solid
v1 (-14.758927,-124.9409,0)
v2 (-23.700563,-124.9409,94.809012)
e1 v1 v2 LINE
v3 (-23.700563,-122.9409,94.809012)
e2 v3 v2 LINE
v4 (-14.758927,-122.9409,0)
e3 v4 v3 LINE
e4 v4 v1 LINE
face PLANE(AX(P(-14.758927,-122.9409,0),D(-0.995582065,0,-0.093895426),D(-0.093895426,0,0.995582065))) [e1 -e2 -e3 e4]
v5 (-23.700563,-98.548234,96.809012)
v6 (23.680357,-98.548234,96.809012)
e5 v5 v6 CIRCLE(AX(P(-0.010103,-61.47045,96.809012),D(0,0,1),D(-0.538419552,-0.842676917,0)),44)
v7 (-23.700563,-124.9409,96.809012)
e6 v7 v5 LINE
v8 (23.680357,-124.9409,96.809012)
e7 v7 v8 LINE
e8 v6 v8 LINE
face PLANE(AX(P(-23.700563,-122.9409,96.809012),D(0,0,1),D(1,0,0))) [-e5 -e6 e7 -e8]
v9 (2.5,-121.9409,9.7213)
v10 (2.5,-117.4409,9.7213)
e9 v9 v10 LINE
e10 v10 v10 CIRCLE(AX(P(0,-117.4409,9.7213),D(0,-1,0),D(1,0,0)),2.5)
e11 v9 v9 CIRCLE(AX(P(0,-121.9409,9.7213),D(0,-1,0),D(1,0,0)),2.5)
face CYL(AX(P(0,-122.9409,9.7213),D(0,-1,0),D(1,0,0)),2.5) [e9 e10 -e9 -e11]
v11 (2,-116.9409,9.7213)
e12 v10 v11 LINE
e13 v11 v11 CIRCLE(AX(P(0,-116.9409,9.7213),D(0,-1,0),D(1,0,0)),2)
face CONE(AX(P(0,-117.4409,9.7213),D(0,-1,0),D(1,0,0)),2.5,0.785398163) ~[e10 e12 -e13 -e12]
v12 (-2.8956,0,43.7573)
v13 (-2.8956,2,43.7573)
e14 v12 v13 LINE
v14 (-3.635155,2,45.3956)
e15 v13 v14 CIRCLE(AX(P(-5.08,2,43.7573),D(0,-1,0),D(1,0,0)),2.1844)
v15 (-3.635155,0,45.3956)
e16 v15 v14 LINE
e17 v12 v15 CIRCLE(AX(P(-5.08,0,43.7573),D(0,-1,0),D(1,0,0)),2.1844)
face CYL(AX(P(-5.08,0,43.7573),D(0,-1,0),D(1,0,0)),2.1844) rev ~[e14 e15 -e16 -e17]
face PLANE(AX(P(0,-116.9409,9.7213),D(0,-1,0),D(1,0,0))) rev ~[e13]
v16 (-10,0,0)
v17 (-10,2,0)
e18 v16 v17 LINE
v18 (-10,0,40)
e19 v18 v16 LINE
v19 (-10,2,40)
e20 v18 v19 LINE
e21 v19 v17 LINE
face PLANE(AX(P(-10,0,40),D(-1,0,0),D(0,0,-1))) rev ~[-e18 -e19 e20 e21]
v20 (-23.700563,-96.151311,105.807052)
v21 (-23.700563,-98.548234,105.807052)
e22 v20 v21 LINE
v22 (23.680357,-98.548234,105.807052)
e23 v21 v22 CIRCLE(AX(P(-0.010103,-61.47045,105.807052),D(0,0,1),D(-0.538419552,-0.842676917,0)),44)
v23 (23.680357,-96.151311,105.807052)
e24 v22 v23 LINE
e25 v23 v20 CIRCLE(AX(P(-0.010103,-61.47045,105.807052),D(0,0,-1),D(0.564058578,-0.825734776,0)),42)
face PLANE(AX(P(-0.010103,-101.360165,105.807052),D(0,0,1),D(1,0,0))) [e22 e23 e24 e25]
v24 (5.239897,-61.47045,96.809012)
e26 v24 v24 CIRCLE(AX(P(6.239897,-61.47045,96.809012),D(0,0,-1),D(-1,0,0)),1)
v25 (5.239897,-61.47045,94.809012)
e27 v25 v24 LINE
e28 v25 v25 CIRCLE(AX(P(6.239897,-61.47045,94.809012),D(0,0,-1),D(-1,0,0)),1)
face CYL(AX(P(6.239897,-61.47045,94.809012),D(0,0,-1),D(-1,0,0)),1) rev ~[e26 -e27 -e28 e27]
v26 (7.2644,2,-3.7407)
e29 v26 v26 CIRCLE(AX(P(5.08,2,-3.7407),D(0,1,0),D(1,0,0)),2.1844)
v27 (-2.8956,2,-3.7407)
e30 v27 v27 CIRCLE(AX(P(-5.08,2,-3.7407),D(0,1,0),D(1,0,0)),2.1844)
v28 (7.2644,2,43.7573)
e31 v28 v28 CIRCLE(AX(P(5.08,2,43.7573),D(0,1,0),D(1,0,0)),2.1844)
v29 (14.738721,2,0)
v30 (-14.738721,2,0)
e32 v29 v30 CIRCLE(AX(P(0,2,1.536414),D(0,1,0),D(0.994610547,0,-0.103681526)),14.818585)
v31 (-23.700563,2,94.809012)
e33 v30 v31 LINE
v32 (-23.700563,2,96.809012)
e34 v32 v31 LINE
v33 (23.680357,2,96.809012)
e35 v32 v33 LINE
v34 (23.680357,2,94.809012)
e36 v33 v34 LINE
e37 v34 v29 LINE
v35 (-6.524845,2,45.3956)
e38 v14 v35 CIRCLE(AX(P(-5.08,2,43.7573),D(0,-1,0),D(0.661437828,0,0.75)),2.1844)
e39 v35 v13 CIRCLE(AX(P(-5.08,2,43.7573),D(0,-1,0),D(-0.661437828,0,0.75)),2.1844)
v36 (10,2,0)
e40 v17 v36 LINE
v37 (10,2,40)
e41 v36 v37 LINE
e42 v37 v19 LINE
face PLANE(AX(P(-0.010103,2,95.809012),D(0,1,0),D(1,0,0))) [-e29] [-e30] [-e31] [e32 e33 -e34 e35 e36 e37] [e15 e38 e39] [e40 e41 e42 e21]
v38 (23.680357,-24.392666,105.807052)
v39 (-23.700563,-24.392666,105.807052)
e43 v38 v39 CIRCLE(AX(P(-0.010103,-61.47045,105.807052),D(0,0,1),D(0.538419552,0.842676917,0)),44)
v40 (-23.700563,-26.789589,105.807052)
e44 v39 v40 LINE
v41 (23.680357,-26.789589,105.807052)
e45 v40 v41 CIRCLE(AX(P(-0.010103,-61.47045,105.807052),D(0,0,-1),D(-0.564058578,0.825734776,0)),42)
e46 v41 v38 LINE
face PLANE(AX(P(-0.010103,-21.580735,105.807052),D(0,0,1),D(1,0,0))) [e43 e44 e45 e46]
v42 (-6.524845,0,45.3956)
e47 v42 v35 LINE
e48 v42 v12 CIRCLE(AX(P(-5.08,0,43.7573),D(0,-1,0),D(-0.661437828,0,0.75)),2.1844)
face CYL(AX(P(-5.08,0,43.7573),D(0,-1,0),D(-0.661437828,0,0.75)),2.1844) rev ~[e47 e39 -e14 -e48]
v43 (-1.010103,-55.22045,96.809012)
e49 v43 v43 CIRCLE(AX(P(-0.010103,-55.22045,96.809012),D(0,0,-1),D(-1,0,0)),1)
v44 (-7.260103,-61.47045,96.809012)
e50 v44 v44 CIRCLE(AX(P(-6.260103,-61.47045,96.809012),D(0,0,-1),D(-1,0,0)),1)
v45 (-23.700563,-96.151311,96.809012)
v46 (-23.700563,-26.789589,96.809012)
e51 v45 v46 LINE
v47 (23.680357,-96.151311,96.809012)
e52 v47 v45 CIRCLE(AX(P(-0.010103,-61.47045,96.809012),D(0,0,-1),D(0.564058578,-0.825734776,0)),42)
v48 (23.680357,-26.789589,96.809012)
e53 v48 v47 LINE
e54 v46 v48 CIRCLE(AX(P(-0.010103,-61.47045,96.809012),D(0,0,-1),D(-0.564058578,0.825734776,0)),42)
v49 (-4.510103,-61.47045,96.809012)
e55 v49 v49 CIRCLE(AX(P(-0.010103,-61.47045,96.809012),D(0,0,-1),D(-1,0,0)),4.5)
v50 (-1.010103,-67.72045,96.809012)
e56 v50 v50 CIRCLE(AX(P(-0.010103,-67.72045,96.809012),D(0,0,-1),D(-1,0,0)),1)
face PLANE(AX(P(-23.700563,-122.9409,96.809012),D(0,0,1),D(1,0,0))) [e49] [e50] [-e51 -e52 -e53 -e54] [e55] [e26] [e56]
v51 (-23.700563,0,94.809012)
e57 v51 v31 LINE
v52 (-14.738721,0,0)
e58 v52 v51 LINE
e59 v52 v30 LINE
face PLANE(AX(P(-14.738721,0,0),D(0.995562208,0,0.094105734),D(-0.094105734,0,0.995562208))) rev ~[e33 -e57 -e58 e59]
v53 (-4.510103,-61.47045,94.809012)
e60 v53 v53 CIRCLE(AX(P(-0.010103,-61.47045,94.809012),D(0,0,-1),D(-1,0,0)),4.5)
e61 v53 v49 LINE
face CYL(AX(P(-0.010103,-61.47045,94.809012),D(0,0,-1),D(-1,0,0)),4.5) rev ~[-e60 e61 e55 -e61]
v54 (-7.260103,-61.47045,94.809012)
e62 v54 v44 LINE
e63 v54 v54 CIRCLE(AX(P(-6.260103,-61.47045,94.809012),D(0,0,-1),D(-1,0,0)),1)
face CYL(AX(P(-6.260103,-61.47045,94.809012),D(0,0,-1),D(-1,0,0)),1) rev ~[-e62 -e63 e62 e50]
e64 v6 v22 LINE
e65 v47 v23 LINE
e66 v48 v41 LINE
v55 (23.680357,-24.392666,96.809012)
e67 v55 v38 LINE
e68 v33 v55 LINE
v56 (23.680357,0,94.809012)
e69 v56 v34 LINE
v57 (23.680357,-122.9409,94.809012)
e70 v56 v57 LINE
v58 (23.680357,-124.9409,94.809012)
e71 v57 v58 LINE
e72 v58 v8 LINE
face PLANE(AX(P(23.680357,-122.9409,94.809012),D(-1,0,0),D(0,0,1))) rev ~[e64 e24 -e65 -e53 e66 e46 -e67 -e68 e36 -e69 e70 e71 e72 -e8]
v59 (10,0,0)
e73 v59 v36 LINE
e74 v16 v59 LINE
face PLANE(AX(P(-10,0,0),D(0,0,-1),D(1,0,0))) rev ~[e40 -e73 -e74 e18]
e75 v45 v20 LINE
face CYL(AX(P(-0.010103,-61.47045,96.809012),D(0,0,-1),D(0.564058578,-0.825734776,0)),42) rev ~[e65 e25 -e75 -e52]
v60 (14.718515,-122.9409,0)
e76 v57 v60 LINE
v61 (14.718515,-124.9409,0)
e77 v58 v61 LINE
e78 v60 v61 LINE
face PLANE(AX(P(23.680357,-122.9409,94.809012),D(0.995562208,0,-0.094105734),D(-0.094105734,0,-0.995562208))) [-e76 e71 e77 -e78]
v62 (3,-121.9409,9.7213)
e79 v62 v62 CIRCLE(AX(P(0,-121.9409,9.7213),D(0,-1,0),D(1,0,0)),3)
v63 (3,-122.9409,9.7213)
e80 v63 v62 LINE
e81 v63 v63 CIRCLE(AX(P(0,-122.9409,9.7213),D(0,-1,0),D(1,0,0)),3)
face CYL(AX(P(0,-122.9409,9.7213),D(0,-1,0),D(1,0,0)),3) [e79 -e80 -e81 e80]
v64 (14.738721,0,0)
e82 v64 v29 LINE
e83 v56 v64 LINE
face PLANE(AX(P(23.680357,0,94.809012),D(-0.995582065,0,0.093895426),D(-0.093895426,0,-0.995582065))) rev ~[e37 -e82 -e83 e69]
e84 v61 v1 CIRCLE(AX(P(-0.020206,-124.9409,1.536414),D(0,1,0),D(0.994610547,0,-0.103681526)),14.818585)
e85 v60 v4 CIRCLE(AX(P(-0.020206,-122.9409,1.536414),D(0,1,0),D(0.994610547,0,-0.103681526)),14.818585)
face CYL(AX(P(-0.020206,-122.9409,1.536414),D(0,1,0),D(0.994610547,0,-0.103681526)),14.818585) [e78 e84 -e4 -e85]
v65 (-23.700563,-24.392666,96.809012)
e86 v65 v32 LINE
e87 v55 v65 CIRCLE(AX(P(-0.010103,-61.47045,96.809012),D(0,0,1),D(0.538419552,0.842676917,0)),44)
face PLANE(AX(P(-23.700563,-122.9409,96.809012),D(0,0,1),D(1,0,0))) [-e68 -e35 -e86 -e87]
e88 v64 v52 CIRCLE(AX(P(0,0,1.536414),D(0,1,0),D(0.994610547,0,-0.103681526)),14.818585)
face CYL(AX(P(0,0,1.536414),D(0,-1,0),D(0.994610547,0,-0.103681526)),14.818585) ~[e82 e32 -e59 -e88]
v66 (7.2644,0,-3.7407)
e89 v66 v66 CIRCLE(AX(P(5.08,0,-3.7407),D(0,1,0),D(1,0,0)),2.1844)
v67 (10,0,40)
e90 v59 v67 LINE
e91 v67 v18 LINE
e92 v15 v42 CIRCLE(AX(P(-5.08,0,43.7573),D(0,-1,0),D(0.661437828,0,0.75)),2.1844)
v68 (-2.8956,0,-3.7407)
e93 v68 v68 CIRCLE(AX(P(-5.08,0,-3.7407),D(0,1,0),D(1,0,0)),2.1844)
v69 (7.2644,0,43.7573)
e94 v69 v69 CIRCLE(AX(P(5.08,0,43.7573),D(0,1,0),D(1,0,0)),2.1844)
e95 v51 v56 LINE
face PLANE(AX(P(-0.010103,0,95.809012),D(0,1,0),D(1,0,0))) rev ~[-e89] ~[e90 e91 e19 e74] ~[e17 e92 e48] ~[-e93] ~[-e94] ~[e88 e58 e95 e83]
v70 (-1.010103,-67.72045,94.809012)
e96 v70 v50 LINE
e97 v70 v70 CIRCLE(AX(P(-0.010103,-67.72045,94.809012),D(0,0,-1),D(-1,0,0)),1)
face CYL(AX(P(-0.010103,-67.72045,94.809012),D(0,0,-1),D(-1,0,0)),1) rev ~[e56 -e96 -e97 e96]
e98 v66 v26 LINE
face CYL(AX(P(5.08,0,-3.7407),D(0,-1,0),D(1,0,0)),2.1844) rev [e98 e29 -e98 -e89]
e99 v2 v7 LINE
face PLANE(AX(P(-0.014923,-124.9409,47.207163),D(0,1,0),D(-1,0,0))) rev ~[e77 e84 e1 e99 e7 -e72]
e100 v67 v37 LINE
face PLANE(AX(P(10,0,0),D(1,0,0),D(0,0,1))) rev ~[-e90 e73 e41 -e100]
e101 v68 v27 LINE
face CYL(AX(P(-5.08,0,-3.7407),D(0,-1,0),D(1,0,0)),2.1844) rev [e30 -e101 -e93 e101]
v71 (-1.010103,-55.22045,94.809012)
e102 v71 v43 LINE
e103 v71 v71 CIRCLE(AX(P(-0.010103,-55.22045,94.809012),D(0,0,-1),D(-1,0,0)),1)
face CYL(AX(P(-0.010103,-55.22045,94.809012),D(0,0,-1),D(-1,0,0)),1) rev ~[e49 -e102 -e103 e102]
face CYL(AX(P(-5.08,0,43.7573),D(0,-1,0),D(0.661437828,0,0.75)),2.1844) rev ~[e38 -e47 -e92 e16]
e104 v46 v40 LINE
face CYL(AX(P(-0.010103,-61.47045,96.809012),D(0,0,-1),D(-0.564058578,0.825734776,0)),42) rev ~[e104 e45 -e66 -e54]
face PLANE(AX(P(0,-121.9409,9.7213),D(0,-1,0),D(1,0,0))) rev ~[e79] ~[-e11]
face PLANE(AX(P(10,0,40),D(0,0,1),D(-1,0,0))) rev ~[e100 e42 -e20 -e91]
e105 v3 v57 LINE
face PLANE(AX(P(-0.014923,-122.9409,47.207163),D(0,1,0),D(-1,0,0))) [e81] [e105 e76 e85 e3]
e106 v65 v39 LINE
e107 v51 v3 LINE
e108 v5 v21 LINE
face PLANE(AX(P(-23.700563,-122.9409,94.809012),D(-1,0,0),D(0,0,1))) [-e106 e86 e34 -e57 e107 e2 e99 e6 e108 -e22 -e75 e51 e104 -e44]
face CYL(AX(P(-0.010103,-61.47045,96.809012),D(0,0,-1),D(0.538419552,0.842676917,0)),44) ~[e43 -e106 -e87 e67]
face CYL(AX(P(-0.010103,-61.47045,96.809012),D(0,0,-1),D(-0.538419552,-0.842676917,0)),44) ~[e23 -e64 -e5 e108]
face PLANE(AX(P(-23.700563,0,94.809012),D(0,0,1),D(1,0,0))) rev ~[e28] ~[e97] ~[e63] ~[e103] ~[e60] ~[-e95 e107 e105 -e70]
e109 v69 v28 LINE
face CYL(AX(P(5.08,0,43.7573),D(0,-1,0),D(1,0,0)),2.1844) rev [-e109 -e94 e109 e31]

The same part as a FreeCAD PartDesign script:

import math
import FreeCAD as App
import Part
import Sketcher
from FreeCAD import Vector


def edges_at(feature, points):
    """Names of the edges that pass closest to the given points."""
    edges = feature.Shape.Edges
    near = lambda p: min(range(len(edges)), key=lambda i: edges[i].distToShape(Part.Vertex(*p))[0])
    return sorted({f"Edge{near(p) + 1}" for p in points})

doc = App.newDocument("Part")
body = doc.addObject("PartDesign::Body", "Body")

# Sketch on XZ plane
sketch1 = body.newObject("Sketcher::SketchObject", "Sketch")
sketch1.AttachmentSupport = (doc.getObject("XZ_Plane"), [""])
sketch1.MapMode = "FlatFace"
sketch1.addGeometry([
    Part.ArcOfCircle(Part.Circle(Vector(0, 1.5, 0), Vector(0, 0, 1), 14.8), math.radians(-174), math.radians(-6)),  # 0
    Part.LineSegment(Vector(-14.7, 0, 0), Vector(-23.7, 94.8, 0)),  # 1
    Part.LineSegment(Vector(-23.7, 94.8, 0), Vector(23.7, 94.8, 0)),  # 2
    Part.LineSegment(Vector(23.7, 94.8, 0), Vector(14.7, 0, 0)),  # 3
    Part.ArcOfCircle(Part.Circle(Vector(-5.1, 43.8, 0), Vector(0, 0, 1), 2.2), math.radians(49), math.radians(131)),  # 4
    Part.ArcOfCircle(Part.Circle(Vector(-5.1, 43.8, 0), Vector(0, 0, 1), 2.2), math.radians(131), math.radians(360)),  # 5
    Part.ArcOfCircle(Part.Circle(Vector(-5.1, 43.8, 0), Vector(0, 0, 1), 2.2), math.radians(0), math.radians(49)),  # 6
    Part.Circle(Vector(5.1, 43.8, 0), Vector(0, 0, 1), 2.2),  # 7
    Part.Circle(Vector(-5.1, -3.7, 0), Vector(0, 0, 1), 2.2),  # 8
    Part.LineSegment(Vector(-10, 40, 0), Vector(-10, 0, 0)),  # 9
    Part.LineSegment(Vector(-10, 0, 0), Vector(10, 0, 0)),  # 10
    Part.LineSegment(Vector(10, 0, 0), Vector(10, 40, 0)),  # 11
    Part.LineSegment(Vector(10, 40, 0), Vector(-10, 40, 0)),  # 12
    Part.Circle(Vector(5.1, -3.7, 0), Vector(0, 0, 1), 2.2),  # 13
], False)
sketch1.addConstraint([
    Sketcher.Constraint("Coincident", 0, 1, 1, 1),
    Sketcher.Constraint("Coincident", 1, 2, 2, 1),
    Sketcher.Constraint("Coincident", 2, 2, 3, 1),
    Sketcher.Constraint("Coincident", 3, 2, 0, 2),
    Sketcher.Constraint("Tangent", 4, 2, 5, 1),
    Sketcher.Constraint("Tangent", 5, 2, 6, 1),
    Sketcher.Constraint("Tangent", 6, 2, 4, 1),
    Sketcher.Constraint("Coincident", 9, 2, 10, 1),
    Sketcher.Constraint("Coincident", 10, 2, 11, 1),
    Sketcher.Constraint("Coincident", 11, 2, 12, 1),
    Sketcher.Constraint("Coincident", 12, 2, 9, 1),
    Sketcher.Constraint("Horizontal", 2),
    Sketcher.Constraint("Vertical", 9),
    Sketcher.Constraint("Horizontal", 10),
    Sketcher.Constraint("Vertical", 11),
    Sketcher.Constraint("Horizontal", 12),
    Sketcher.Constraint("Equal", 6, 7),
    Sketcher.Constraint("Equal", 7, 8),
    Sketcher.Constraint("Equal", 8, 13),
    Sketcher.Constraint("Symmetric", 0, 1, 3, 2, -1, 1),
    Sketcher.Constraint("Symmetric", 9, 2, 10, 2, -1, 1),
    Sketcher.Constraint("Symmetric", 4, 3, 7, 3, -2),
    Sketcher.Constraint("Symmetric", 8, 3, 13, 3, -2),
    Sketcher.Constraint("PointOnObject", 0, 3, -2),
    Sketcher.Constraint("Horizontal", 7, 3, 5, 2),
    Sketcher.Constraint("Horizontal", 4, 2, 6, 2),
    Sketcher.Constraint("Vertical", 6, 3, 8, 3),
    Sketcher.Constraint("DistanceX", 10, 1, 10, 2, 20.0),
    Sketcher.Constraint("DistanceY", 9, 2, 9, 1, 40.0),
    Sketcher.Constraint("Diameter", 7, 4.3688),
    Sketcher.Constraint("DistanceX", 4, 3, -1, 1, 5.08),
    Sketcher.Constraint("Radius", 0, 14.818585),
    Sketcher.Constraint("DistanceY", 8, 3, 4, 3, 47.498),
    Sketcher.Constraint("DistanceX", 2, 1, 2, 2, 47.380921),
    Sketcher.Constraint("DistanceY", -1, 1, 4, 3, 43.7573),
    Sketcher.Constraint("DistanceY", -1, 1, 4, 2, 45.3956),
    Sketcher.Constraint("Distance", 1, 95.23163),
    Sketcher.Constraint("Distance", 3, 95.22973),
    Sketcher.Constraint("DistanceX", 0, 1, -1, 1, 14.738721),
])
pad1 = body.newObject("PartDesign::Pad", "Pad")
pad1.Profile = sketch1
pad1.Length = 2
pad1.Reversed = True

# Sketch on XZ plane
sketch2 = body.newObject("Sketcher::SketchObject", "Sketch001")
sketch2.AttachmentSupport = (doc.getObject("XZ_Plane"), [""])
sketch2.MapMode = "FlatFace"
sketch2.addGeometry([
    Part.LineSegment(Vector(-23.7, 94.8, 0), Vector(-23.7, 96.8, 0)),
    Part.LineSegment(Vector(-23.7, 96.8, 0), Vector(23.7, 96.8, 0)),
    Part.LineSegment(Vector(23.7, 96.8, 0), Vector(23.7, 94.8, 0)),
    Part.LineSegment(Vector(23.7, 94.8, 0), Vector(-23.7, 94.8, 0)),
], False)
sketch2.addConstraint([
    Sketcher.Constraint("Coincident", 0, 2, 1, 1),
    Sketcher.Constraint("Coincident", 1, 2, 2, 1),
    Sketcher.Constraint("Coincident", 2, 2, 3, 1),
    Sketcher.Constraint("Coincident", 3, 2, 0, 1),
    Sketcher.Constraint("Vertical", 0),
    Sketcher.Constraint("Horizontal", 1),
    Sketcher.Constraint("Vertical", 2),
    Sketcher.Constraint("Horizontal", 3),
    Sketcher.Constraint("DistanceY", 0, 1, 0, 2, 2.0),
    Sketcher.Constraint("DistanceX", 1, 1, 1, 2, 47.380921),
    Sketcher.Constraint("DistanceY", -1, 1, 0, 2, 96.809012),
    Sketcher.Constraint("DistanceX", 0, 2, -1, 1, 23.700563),
])
pad2 = body.newObject("PartDesign::Pad", "Pad001")
pad2.Profile = sketch2
pad2.Type = "TwoLengths"
pad2.Length = 2
pad2.Length2 = 122.9409
pad2.Reversed = True

# Sketch on XZ plane
sketch3 = body.newObject("Sketcher::SketchObject", "Sketch002")
sketch3.AttachmentSupport = (doc.getObject("XZ_Plane"), [""])
sketch3.MapMode = "FlatFace"
sketch3.AttachmentOffset = App.Placement(Vector(0, 0, 122.9409), App.Rotation())
sketch3.addGeometry([
    Part.ArcOfCircle(Part.Circle(Vector(0, 1.5, 0), Vector(0, 0, 1), 14.8), math.radians(-174), math.radians(-6)),  # 0
    Part.LineSegment(Vector(14.7, 0, 0), Vector(23.7, 94.8, 0)),  # 1
    Part.LineSegment(Vector(23.7, 94.8, 0), Vector(23.7, 96.8, 0)),  # 2
    Part.LineSegment(Vector(23.7, 96.8, 0), Vector(-23.7, 96.8, 0)),  # 3
    Part.LineSegment(Vector(-23.7, 96.8, 0), Vector(-23.7, 94.8, 0)),  # 4
    Part.LineSegment(Vector(-23.7, 94.8, 0), Vector(-14.8, 0, 0)),  # 5
], False)
sketch3.addConstraint([
    Sketcher.Constraint("Coincident", 0, 2, 1, 1),
    Sketcher.Constraint("Coincident", 1, 2, 2, 1),
    Sketcher.Constraint("Coincident", 2, 2, 3, 1),
    Sketcher.Constraint("Coincident", 3, 2, 4, 1),
    Sketcher.Constraint("Coincident", 4, 2, 5, 1),
    Sketcher.Constraint("Coincident", 5, 2, 0, 1),
    Sketcher.Constraint("Vertical", 2),
    Sketcher.Constraint("Horizontal", 3),
    Sketcher.Constraint("Vertical", 4),
    Sketcher.Constraint("PointOnObject", 0, 2, -1),
    Sketcher.Constraint("PointOnObject", 5, 2, -1),
    Sketcher.Constraint("Horizontal", 1, 2, 4, 2),
    Sketcher.Constraint("DistanceY", 2, 1, 2, 2, 2.0),
    Sketcher.Constraint("Radius", 0, 14.818585),
    Sketcher.Constraint("DistanceX", 3, 2, 3, 1, 47.380921),
    Sketcher.Constraint("DistanceY", 0, 3, 1, 2, 93.272598),
    Sketcher.Constraint("Distance", 1, 95.23163),
    Sketcher.Constraint("Distance", 5, 95.22973),
    Sketcher.Constraint("DistanceX", 0, 3, -1, 1, 0.020206),
])
pad3 = body.newObject("PartDesign::Pad", "Pad002")
pad3.Profile = sketch3
pad3.Length = 2

# Sketch on XZ plane
sketch4 = body.newObject("Sketcher::SketchObject", "Sketch003")
sketch4.AttachmentSupport = (doc.getObject("XZ_Plane"), [""])
sketch4.MapMode = "FlatFace"
sketch4.AttachmentOffset = App.Placement(Vector(0, 0, 122.9409), App.Rotation())
sketch4.addGeometry([
    Part.Circle(Vector(0, 9.7, 0), Vector(0, 0, 1), 3),
    Part.Circle(Vector(0, 9.7, 0), Vector(0, 0, 1), 2.5),
], False)
sketch4.addConstraint([
    Sketcher.Constraint("Coincident", 1, 3, 0, 3),
    Sketcher.Constraint("PointOnObject", 0, 3, -2),
    Sketcher.Constraint("Diameter", 0, 6.0),
    Sketcher.Constraint("Diameter", 1, 5.0),
    Sketcher.Constraint("DistanceY", -1, 1, 0, 3, 9.7213),
])
pad4 = body.newObject("PartDesign::Pad", "Pad003")
pad4.Profile = sketch4
pad4.Length = 1
pad4.Reversed = True

# Sketch on XZ plane
sketch5 = body.newObject("Sketcher::SketchObject", "Sketch004")
sketch5.AttachmentSupport = (doc.getObject("XZ_Plane"), [""])
sketch5.MapMode = "FlatFace"
sketch5.AttachmentOffset = App.Placement(Vector(0, 0, 122.9409), App.Rotation())
sketch5.addGeometry(Part.Circle(Vector(0, 9.7, 0), Vector(0, 0, 1), 2.5), False)
sketch5.addConstraint([
    Sketcher.Constraint("PointOnObject", 0, 3, -2),
    Sketcher.Constraint("Diameter", 0, 5.0),
    Sketcher.Constraint("DistanceY", -1, 1, 0, 3, 9.7213),
])
pad5 = body.newObject("PartDesign::Pad", "Pad004")
pad5.Profile = sketch5
pad5.Length = 6
pad5.Reversed = True
doc.recompute()

chamfer = body.newObject("PartDesign::Chamfer", "Chamfer")
chamfer.Base = (pad5, edges_at(pad5, [(-2.5, -116.941, 9.721)]))
chamfer.Size = 0.5

# Sketch on XY plane
sketch6 = body.newObject("Sketcher::SketchObject", "Sketch005")
sketch6.AttachmentSupport = (doc.getObject("XY_Plane"), [""])
sketch6.MapMode = "FlatFace"
sketch6.AttachmentOffset = App.Placement(Vector(0, 0, 94.809012), App.Rotation())
sketch6.addGeometry([
    Part.Circle(Vector(0, -61.5, 0), Vector(0, 0, 1), 4.5),  # 0
    Part.Circle(Vector(-6.3, -61.5, 0), Vector(0, 0, 1), 1),  # 1
    Part.Circle(Vector(0, -67.7, 0), Vector(0, 0, 1), 1),  # 2
    Part.Circle(Vector(6.2, -61.5, 0), Vector(0, 0, 1), 1),  # 3
    Part.Circle(Vector(0, -55.2, 0), Vector(0, 0, 1), 1),  # 4
], False)
sketch6.addConstraint([
    Sketcher.Constraint("Equal", 1, 2),
    Sketcher.Constraint("Equal", 2, 3),
    Sketcher.Constraint("Equal", 3, 4),
    Sketcher.Constraint("Horizontal", 0, 3, 1, 3),
    Sketcher.Constraint("Horizontal", 1, 3, 3, 3),
    Sketcher.Constraint("Vertical", 0, 3, 2, 3),
    Sketcher.Constraint("Vertical", 2, 3, 4, 3),
    Sketcher.Constraint("Diameter", 0, 9.0),
    Sketcher.Constraint("Diameter", 1, 2.0),
    Sketcher.Constraint("DistanceX", 1, 3, 3, 3, 12.5),
    Sketcher.Constraint("DistanceY", 2, 3, 4, 3, 12.5),
    Sketcher.Constraint("DistanceX", 1, 3, 0, 3, 6.25),
    Sketcher.Constraint("DistanceY", 2, 3, 0, 3, 6.25),
    Sketcher.Constraint("DistanceY", 0, 3, -1, 1, 61.47045),
    Sketcher.Constraint("DistanceX", 0, 3, -1, 1, 0.010103),
])
pocket1 = body.newObject("PartDesign::Pocket", "Pocket")
pocket1.Profile = sketch6
pocket1.Length = 10
pocket1.Reversed = True

# Sketch on XY plane
sketch7 = body.newObject("Sketcher::SketchObject", "Sketch006")
sketch7.AttachmentSupport = (doc.getObject("XY_Plane"), [""])
sketch7.MapMode = "FlatFace"
sketch7.AttachmentOffset = App.Placement(Vector(0, 0, 96.809012), App.Rotation())
sketch7.addGeometry([
    Part.ArcOfCircle(Part.Circle(Vector(0, -61.5, 0), Vector(0, 0, 1), 44), math.radians(-123), math.radians(-57)),  # 0
    Part.LineSegment(Vector(23.7, -98.5, 0), Vector(23.7, -96.2, 0)),  # 1
    Part.ArcOfCircle(Part.Circle(Vector(0, -61.5, 0), Vector(0, 0, 1), 42), math.radians(-124), math.radians(-56)),  # 2
    Part.LineSegment(Vector(-23.7, -96.2, 0), Vector(-23.7, -98.5, 0)),  # 3
    Part.ArcOfCircle(Part.Circle(Vector(0, -61.5, 0), Vector(0, 0, 1), 42), math.radians(56), math.radians(124)),  # 4
    Part.LineSegment(Vector(23.7, -26.8, 0), Vector(23.7, -24.4, 0)),  # 5
    Part.ArcOfCircle(Part.Circle(Vector(0, -61.5, 0), Vector(0, 0, 1), 44), math.radians(57), math.radians(123)),  # 6
    Part.LineSegment(Vector(-23.7, -24.4, 0), Vector(-23.7, -26.8, 0)),  # 7
], False)
sketch7.addConstraint([
    Sketcher.Constraint("Coincident", 0, 2, 1, 1),
    Sketcher.Constraint("Coincident", 1, 2, 2, 2),
    Sketcher.Constraint("Coincident", 2, 1, 3, 1),
    Sketcher.Constraint("Coincident", 3, 2, 0, 1),
    Sketcher.Constraint("Coincident", 4, 1, 5, 1),
    Sketcher.Constraint("Coincident", 5, 2, 6, 1),
    Sketcher.Constraint("Coincident", 6, 2, 7, 1),
    Sketcher.Constraint("Coincident", 7, 2, 4, 2),
    Sketcher.Constraint("Vertical", 1),
    Sketcher.Constraint("Vertical", 3),
    Sketcher.Constraint("Vertical", 5),
    Sketcher.Constraint("Vertical", 7),
    Sketcher.Constraint("Coincident", 2, 3, 0, 3),
    Sketcher.Constraint("Coincident", 4, 3, 0, 3),
    Sketcher.Constraint("Coincident", 6, 3, 0, 3),
    Sketcher.Constraint("Equal", 2, 4),
    Sketcher.Constraint("Equal", 0, 6),
    Sketcher.Constraint("Horizontal", 1, 2, 2, 1),
    Sketcher.Constraint("Horizontal", 5, 2, 6, 2),
    Sketcher.Constraint("Vertical", 1, 2, 4, 1),
    Sketcher.Constraint("Radius", 0, 44.0),
    Sketcher.Constraint("Radius", 2, 42.0),
    Sketcher.Constraint("DistanceY", 1, 1, 1, 2, 2.396924),
    Sketcher.Constraint("DistanceY", 0, 3, -1, 1, 61.47045),
    Sketcher.Constraint("DistanceX", 0, 3, -1, 1, 0.010103),
])
pad6 = body.newObject("PartDesign::Pad", "Pad005")
pad6.Profile = sketch7
pad6.Length = 8.99804

doc.recompute()
